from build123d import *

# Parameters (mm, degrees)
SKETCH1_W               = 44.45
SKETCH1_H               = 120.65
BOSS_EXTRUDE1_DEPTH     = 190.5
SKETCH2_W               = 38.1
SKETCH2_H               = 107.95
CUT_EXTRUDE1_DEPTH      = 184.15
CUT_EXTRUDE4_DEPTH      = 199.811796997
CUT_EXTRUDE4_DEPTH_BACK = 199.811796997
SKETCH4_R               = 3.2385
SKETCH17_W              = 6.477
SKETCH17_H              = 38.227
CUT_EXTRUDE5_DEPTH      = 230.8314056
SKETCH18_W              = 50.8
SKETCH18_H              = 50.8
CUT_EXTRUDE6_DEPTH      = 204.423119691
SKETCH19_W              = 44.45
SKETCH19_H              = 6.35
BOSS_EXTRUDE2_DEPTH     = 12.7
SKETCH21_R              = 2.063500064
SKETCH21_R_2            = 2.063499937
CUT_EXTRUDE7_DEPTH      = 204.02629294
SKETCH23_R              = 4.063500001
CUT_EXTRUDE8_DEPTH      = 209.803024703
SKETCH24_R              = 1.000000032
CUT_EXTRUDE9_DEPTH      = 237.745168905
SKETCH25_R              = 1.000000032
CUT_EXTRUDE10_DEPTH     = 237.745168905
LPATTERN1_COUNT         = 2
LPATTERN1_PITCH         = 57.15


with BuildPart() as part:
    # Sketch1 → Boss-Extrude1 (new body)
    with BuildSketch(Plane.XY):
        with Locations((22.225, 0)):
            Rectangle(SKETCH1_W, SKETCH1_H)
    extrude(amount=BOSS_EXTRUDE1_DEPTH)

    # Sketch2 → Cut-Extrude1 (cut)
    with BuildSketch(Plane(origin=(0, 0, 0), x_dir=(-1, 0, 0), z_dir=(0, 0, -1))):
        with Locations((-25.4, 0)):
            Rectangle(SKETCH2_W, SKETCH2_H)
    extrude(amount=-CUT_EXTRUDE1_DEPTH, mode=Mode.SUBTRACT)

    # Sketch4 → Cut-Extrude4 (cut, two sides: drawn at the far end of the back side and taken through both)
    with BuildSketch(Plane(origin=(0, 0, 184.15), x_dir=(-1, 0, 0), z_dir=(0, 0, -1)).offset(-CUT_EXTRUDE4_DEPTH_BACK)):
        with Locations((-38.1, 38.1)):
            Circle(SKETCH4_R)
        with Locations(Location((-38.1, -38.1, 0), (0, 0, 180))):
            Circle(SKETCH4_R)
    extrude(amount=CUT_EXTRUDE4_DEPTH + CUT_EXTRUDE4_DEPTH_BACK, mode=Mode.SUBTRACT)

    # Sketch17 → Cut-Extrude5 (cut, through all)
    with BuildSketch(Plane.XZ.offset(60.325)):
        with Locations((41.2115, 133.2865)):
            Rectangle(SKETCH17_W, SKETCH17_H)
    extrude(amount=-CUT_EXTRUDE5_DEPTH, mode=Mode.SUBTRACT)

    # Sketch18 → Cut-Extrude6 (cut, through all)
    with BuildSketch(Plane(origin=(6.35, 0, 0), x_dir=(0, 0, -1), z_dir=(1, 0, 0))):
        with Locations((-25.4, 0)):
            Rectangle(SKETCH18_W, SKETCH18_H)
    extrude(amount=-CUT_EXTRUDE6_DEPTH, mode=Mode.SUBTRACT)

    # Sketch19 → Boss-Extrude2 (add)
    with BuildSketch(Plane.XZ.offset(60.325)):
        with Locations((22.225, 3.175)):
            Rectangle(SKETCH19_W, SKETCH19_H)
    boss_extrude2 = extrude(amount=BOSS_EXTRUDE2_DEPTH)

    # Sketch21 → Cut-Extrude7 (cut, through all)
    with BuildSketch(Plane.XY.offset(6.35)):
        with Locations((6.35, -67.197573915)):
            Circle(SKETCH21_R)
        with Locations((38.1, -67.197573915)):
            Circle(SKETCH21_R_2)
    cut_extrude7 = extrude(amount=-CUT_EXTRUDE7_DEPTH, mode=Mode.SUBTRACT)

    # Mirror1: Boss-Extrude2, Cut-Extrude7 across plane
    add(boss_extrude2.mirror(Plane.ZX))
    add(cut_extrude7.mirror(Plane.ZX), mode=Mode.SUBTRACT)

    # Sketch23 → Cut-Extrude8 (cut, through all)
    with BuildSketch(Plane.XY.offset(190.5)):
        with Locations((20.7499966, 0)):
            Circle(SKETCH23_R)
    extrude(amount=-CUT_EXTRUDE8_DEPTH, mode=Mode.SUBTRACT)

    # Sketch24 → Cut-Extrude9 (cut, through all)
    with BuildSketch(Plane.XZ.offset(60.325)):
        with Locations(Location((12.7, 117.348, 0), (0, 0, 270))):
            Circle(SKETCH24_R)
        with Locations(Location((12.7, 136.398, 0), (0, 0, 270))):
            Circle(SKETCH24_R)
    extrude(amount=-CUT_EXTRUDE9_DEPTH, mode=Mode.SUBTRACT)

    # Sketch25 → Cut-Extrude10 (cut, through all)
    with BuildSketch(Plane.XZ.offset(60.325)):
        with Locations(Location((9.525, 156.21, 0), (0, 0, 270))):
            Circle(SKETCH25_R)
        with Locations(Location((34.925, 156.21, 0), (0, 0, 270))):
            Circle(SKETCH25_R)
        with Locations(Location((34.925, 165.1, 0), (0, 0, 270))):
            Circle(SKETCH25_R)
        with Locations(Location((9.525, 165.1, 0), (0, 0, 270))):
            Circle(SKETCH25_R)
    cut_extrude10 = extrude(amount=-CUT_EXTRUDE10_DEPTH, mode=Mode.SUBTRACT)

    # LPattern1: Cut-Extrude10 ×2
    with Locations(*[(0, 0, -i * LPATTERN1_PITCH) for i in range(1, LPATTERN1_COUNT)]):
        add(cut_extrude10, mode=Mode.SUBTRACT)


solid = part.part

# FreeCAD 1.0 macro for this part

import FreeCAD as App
import Part
import Sketcher
from FreeCAD import Vector
Q = App.Units.Quantity


def add_polygon(sketch, points):
    """Adds a closed chain of lines whose ends are joined by coincident constraints."""
    first, n = sketch.GeometryCount, len(points)
    for a, b in zip(points, points[1:] + points[:1]):
        sketch.addGeometry(Part.LineSegment(App.Vector(*a, 0), App.Vector(*b, 0)), False)
    for i in range(n):
        sketch.addConstraint(Sketcher.Constraint("Coincident", first + i, 2, first + (i + 1) % n, 1))

doc = App.newDocument("Part")
body = doc.addObject("PartDesign::Body", "Body")

# Sketch on XY plane
sketch1 = doc.addObject("Sketcher::SketchObject", "Sketch")
body.addObject(sketch1)
sketch1.AttachmentSupport = (doc.XY_Plane, [""])
sketch1.MapMode = "FlatFace"
add_polygon(sketch1, [(0, 60.325), (0, -60.325), (44.45, -60.325), (44.45, 60.325)])  # lines 0-3
sketch1.addConstraint(Sketcher.Constraint("Vertical", 0))
sketch1.addConstraint(Sketcher.Constraint("Horizontal", 1))
sketch1.addConstraint(Sketcher.Constraint("Vertical", 2))
sketch1.addConstraint(Sketcher.Constraint("Horizontal", 3))
sketch1.addConstraint(Sketcher.Constraint("Symmetric", 0, 2, 3, 2, -1, 1))
sketch1.addConstraint(Sketcher.Constraint("DistanceX", 1, 1, 1, 2, Q("1.75 in")))
sketch1.addConstraint(Sketcher.Constraint("DistanceY", 0, 2, 0, 1, Q("4.75 in")))
pad1 = doc.addObject("PartDesign::Pad", "Pad")
body.addObject(pad1)
pad1.Profile = sketch1
pad1.Length = Q("7.5 in")

# Sketch on XY plane
sketch2 = doc.addObject("Sketcher::SketchObject", "Sketch001")
body.addObject(sketch2)
sketch2.AttachmentSupport = (doc.XY_Plane, [""])
sketch2.MapMode = "FlatFace"
add_polygon(sketch2, [(44.45, 53.975), (44.45, -53.975), (6.35, -53.975), (6.35, 53.975)])  # lines 0-3
sketch2.addConstraint(Sketcher.Constraint("Vertical", 0))
sketch2.addConstraint(Sketcher.Constraint("Horizontal", 1))
sketch2.addConstraint(Sketcher.Constraint("Vertical", 2))
sketch2.addConstraint(Sketcher.Constraint("Horizontal", 3))
sketch2.addConstraint(Sketcher.Constraint("DistanceX", 1, 2, 1, 1, Q("1.5 in")))
sketch2.addConstraint(Sketcher.Constraint("DistanceY", 0, 2, 0, 1, Q("4.25 in")))
sketch2.addConstraint(Sketcher.Constraint("DistanceX", -1, 1, 0, 2, Q("1.75 in")))
sketch2.addConstraint(Sketcher.Constraint("DistanceY", 0, 2, -1, 1, Q("2.125 in")))
pocket1 = doc.addObject("PartDesign::Pocket", "Pocket")
body.addObject(pocket1)
pocket1.Profile = sketch2
pocket1.Length = Q("7.25 in")
pocket1.Reversed = True

# Sketch on XY plane
sketch3 = doc.addObject("Sketcher::SketchObject", "Sketch002")
body.addObject(sketch3)
sketch3.AttachmentSupport = (doc.XY_Plane, [""])
sketch3.MapMode = "FlatFace"
sketch3.AttachmentOffset = App.Placement(Vector(0, 0, 7.25 * 25.4), App.Rotation())
sketch3.addGeometry(Part.Circle(Vector(38.1, 38.1, 0), Vector(0, 0, 1), 3.2385), False)
sketch3.addGeometry(Part.Circle(Vector(38.1, -38.1, 0), Vector(0, 0, 1), 3.2385), False)
sketch3.addConstraint(Sketcher.Constraint("Equal", 0, 1))
sketch3.addConstraint(Sketcher.Constraint("Symmetric", 0, 3, 1, 3, -1))
sketch3.addConstraint(Sketcher.Constraint("Diameter", 0, Q("0.255 in")))
sketch3.addConstraint(Sketcher.Constraint("DistanceY", 1, 3, 0, 3, Q("3 in")))
sketch3.addConstraint(Sketcher.Constraint("DistanceX", -1, 1, 0, 3, Q("1.5 in")))
pocket2 = doc.addObject("PartDesign::Pocket", "Pocket001")
body.addObject(pocket2)
pocket2.Profile = sketch3
pocket2.Type = "ThroughAll"
pocket2.Midplane = True

# Sketch on XZ plane
sketch4 = doc.addObject("Sketcher::SketchObject", "Sketch003")
body.addObject(sketch4)
sketch4.AttachmentSupport = (doc.XZ_Plane, [""])
sketch4.MapMode = "FlatFace"
sketch4.AttachmentOffset = App.Placement(Vector(0, 0, 2.375 * 25.4), App.Rotation())
add_polygon(sketch4, [(37.973, 152.4), (37.973, 114.173), (44.45, 114.173), (44.45, 152.4)])  # lines 0-3
sketch4.addConstraint(Sketcher.Constraint("Vertical", 0))
sketch4.addConstraint(Sketcher.Constraint("Horizontal", 1))
sketch4.addConstraint(Sketcher.Constraint("Vertical", 2))
sketch4.addConstraint(Sketcher.Constraint("Horizontal", 3))
sketch4.addConstraint(Sketcher.Constraint("DistanceY", -1, 1, 2, 2, Q("6 in")))
sketch4.addConstraint(Sketcher.Constraint("DistanceX", 1, 1, 1, 2, Q("0.255 in")))
sketch4.addConstraint(Sketcher.Constraint("DistanceY", 0, 2, 0, 1, Q("1.505 in")))
sketch4.addConstraint(Sketcher.Constraint("DistanceX", -1, 1, 1, 2, Q("1.75 in")))
pocket3 = doc.addObject("PartDesign::Pocket", "Pocket002")
body.addObject(pocket3)
pocket3.Profile = sketch4
pocket3.Type = "ThroughAll"

# Sketch on YZ plane
sketch5 = doc.addObject("Sketcher::SketchObject", "Sketch004")
body.addObject(sketch5)
sketch5.AttachmentSupport = (doc.YZ_Plane, [""])
sketch5.MapMode = "FlatFace"
sketch5.AttachmentOffset = App.Placement(Vector(0, 0, 0.25 * 25.4), App.Rotation())
add_polygon(sketch5, [(25.4, 50.8), (-25.4, 50.8), (-25.4, 0), (25.4, 0)])  # lines 0-3
sketch5.addConstraint(Sketcher.Constraint("Horizontal", 0))
sketch5.addConstraint(Sketcher.Constraint("Vertical", 1))
sketch5.addConstraint(Sketcher.Constraint("Horizontal", 2))
sketch5.addConstraint(Sketcher.Constraint("Vertical", 3))
sketch5.addConstraint(Sketcher.Constraint("Symmetric", 1, 2, 2, 2, -1, 1))
sketch5.addConstraint(Sketcher.Constraint("Equal", 2, 1))
sketch5.addConstraint(Sketcher.Constraint("DistanceX", 0, 2, 0, 1, Q("2 in")))
pocket4 = doc.addObject("PartDesign::Pocket", "Pocket003")
body.addObject(pocket4)
pocket4.Profile = sketch5
pocket4.Type = "ThroughAll"

# Sketch on XZ plane
sketch6 = doc.addObject("Sketcher::SketchObject", "Sketch005")
body.addObject(sketch6)
sketch6.AttachmentSupport = (doc.XZ_Plane, [""])
sketch6.MapMode = "FlatFace"
sketch6.AttachmentOffset = App.Placement(Vector(0, 0, 2.375 * 25.4), App.Rotation())
add_polygon(sketch6, [(0, 6.35), (0, 0), (44.45, 0), (44.45, 6.35)])  # lines 0-3
sketch6.addConstraint(Sketcher.Constraint("Vertical", 0))
sketch6.addConstraint(Sketcher.Constraint("Horizontal", 1))
sketch6.addConstraint(Sketcher.Constraint("Vertical", 2))
sketch6.addConstraint(Sketcher.Constraint("Horizontal", 3))
sketch6.addConstraint(Sketcher.Constraint("Coincident", 0, 2, -1, 1))
sketch6.addConstraint(Sketcher.Constraint("DistanceX", 1, 1, 1, 2, Q("1.75 in")))
sketch6.addConstraint(Sketcher.Constraint("DistanceY", 0, 2, 0, 1, Q("0.25 in")))
pad2 = doc.addObject("PartDesign::Pad", "Pad001")
body.addObject(pad2)
pad2.Profile = sketch6
pad2.Length = Q("0.5 in")

# Sketch on XY plane
sketch7 = doc.addObject("Sketcher::SketchObject", "Sketch006")
body.addObject(sketch7)
sketch7.AttachmentSupport = (doc.XY_Plane, [""])
sketch7.MapMode = "FlatFace"
sketch7.AttachmentOffset = App.Placement(Vector(0, 0, 0.25 * 25.4), App.Rotation())
sketch7.addGeometry(Part.Circle(Vector(6.35, -67.197574, 0), Vector(0, 0, 1), 2.0635), False)
sketch7.addGeometry(Part.Circle(Vector(38.1, -67.197574, 0), Vector(0, 0, 1), 2.0635), False)
sketch7.addConstraint(Sketcher.Constraint("Equal", 0, 1))
sketch7.addConstraint(Sketcher.Constraint("Horizontal", 0, 3, 1, 3))
sketch7.addConstraint(Sketcher.Constraint("DistanceX", -1, 1, 1, 3, Q("1.5 in")))
sketch7.addConstraint(Sketcher.Constraint("Diameter", 0, Q("4.127 mm")))
sketch7.addConstraint(Sketcher.Constraint("DistanceX", -1, 1, 0, 3, Q("0.25 in")))
sketch7.addConstraint(Sketcher.Constraint("DistanceY", 0, 3, -1, 1, Q("67.197574 mm")))
pocket5 = doc.addObject("PartDesign::Pocket", "Pocket004")
body.addObject(pocket5)
pocket5.Profile = sketch7
pocket5.Type = "ThroughAll"
doc.recompute()

mirrored = doc.addObject("PartDesign::Mirrored", "Mirrored")
body.addObject(mirrored)
mirrored.Originals = [pad2, pocket5]
mirrored.MirrorPlane = (doc.XZ_Plane, [""])
body.Tip = mirrored

# Sketch on XY plane
sketch8 = doc.addObject("Sketcher::SketchObject", "Sketch007")
body.addObject(sketch8)
sketch8.AttachmentSupport = (doc.XY_Plane, [""])
sketch8.MapMode = "FlatFace"
sketch8.AttachmentOffset = App.Placement(Vector(0, 0, 7.5 * 25.4), App.Rotation())
sketch8.addGeometry(Part.Circle(Vector(20.749997, 0, 0), Vector(0, 0, 1), 4.0635), False)
sketch8.addConstraint(Sketcher.Constraint("PointOnObject", 0, 3, -1))
sketch8.addConstraint(Sketcher.Constraint("Diameter", 0, Q("8.127 mm")))
sketch8.addConstraint(Sketcher.Constraint("DistanceX", -1, 1, 0, 3, Q("20.749997 mm")))
pocket6 = doc.addObject("PartDesign::Pocket", "Pocket005")
body.addObject(pocket6)
pocket6.Profile = sketch8
pocket6.Type = "ThroughAll"

# Sketch on XZ plane
sketch9 = doc.addObject("Sketcher::SketchObject", "Sketch008")
body.addObject(sketch9)
sketch9.AttachmentSupport = (doc.XZ_Plane, [""])
sketch9.MapMode = "FlatFace"
sketch9.AttachmentOffset = App.Placement(Vector(0, 0, 2.375 * 25.4), App.Rotation())
sketch9.addGeometry(Part.Circle(Vector(12.7, 117.348, 0), Vector(0, 0, 1), 1), False)
sketch9.addGeometry(Part.Circle(Vector(12.7, 136.398, 0), Vector(0, 0, 1), 1), False)
sketch9.addConstraint(Sketcher.Constraint("Equal", 0, 1))
sketch9.addConstraint(Sketcher.Constraint("Vertical", 0, 3, 1, 3))
sketch9.addConstraint(Sketcher.Constraint("DistanceX", -1, 1, 0, 3, Q("0.5 in")))
sketch9.addConstraint(Sketcher.Constraint("Diameter", 0, Q("2 mm")))
sketch9.addConstraint(Sketcher.Constraint("DistanceY", -1, 1, 0, 3, Q("4.62 in")))
sketch9.addConstraint(Sketcher.Constraint("DistanceY", -1, 1, 1, 3, Q("5.37 in")))
pocket7 = doc.addObject("PartDesign::Pocket", "Pocket006")
body.addObject(pocket7)
pocket7.Profile = sketch9
pocket7.Type = "ThroughAll"

# Sketch on XZ plane
sketch10 = doc.addObject("Sketcher::SketchObject", "Sketch009")
body.addObject(sketch10)
sketch10.AttachmentSupport = (doc.XZ_Plane, [""])
sketch10.MapMode = "FlatFace"
sketch10.AttachmentOffset = App.Placement(Vector(0, 0, 2.375 * 25.4), App.Rotation())
sketch10.addGeometry(Part.Circle(Vector(9.525, 156.21, 0), Vector(0, 0, 1), 1), False)
sketch10.addGeometry(Part.Circle(Vector(34.925, 156.21, 0), Vector(0, 0, 1), 1), False)
sketch10.addGeometry(Part.Circle(Vector(34.925, 165.1, 0), Vector(0, 0, 1), 1), False)
sketch10.addGeometry(Part.Circle(Vector(9.525, 165.1, 0), Vector(0, 0, 1), 1), False)
sketch10.addConstraint(Sketcher.Constraint("Equal", 0, 1))
sketch10.addConstraint(Sketcher.Constraint("Equal", 1, 2))
sketch10.addConstraint(Sketcher.Constraint("Equal", 2, 3))
sketch10.addConstraint(Sketcher.Constraint("Horizontal", 0, 3, 1, 3))
sketch10.addConstraint(Sketcher.Constraint("Horizontal", 2, 3, 3, 3))
sketch10.addConstraint(Sketcher.Constraint("Vertical", 1, 3, 2, 3))
sketch10.addConstraint(Sketcher.Constraint("Vertical", 0, 3, 3, 3))
sketch10.addConstraint(Sketcher.Constraint("DistanceX", 0, 3, 1, 3, Q("1 in")))
sketch10.addConstraint(Sketcher.Constraint("DistanceY", -1, 1, 2, 3, Q("6.5 in")))
sketch10.addConstraint(Sketcher.Constraint("Diameter", 0, Q("2 mm")))
sketch10.addConstraint(Sketcher.Constraint("DistanceY", -1, 1, 0, 3, Q("6.15 in")))
sketch10.addConstraint(Sketcher.Constraint("DistanceX", -1, 1, 0, 3, Q("0.375 in")))
pocket8 = doc.addObject("PartDesign::Pocket", "Pocket007")
body.addObject(pocket8)
pocket8.Profile = sketch10
pocket8.Type = "ThroughAll"
doc.recompute()

linearpattern = doc.addObject("PartDesign::LinearPattern", "LinearPattern")
body.addObject(linearpattern)
linearpattern.Originals = [pocket8]
linearpattern.Direction = (doc.Z_Axis, [""])
linearpattern.Mode = "offset"
linearpattern.Offset = Q("2.25 in")
linearpattern.Occurrences = 2
linearpattern.Reversed = True
body.Tip = linearpattern

doc.recompute()
